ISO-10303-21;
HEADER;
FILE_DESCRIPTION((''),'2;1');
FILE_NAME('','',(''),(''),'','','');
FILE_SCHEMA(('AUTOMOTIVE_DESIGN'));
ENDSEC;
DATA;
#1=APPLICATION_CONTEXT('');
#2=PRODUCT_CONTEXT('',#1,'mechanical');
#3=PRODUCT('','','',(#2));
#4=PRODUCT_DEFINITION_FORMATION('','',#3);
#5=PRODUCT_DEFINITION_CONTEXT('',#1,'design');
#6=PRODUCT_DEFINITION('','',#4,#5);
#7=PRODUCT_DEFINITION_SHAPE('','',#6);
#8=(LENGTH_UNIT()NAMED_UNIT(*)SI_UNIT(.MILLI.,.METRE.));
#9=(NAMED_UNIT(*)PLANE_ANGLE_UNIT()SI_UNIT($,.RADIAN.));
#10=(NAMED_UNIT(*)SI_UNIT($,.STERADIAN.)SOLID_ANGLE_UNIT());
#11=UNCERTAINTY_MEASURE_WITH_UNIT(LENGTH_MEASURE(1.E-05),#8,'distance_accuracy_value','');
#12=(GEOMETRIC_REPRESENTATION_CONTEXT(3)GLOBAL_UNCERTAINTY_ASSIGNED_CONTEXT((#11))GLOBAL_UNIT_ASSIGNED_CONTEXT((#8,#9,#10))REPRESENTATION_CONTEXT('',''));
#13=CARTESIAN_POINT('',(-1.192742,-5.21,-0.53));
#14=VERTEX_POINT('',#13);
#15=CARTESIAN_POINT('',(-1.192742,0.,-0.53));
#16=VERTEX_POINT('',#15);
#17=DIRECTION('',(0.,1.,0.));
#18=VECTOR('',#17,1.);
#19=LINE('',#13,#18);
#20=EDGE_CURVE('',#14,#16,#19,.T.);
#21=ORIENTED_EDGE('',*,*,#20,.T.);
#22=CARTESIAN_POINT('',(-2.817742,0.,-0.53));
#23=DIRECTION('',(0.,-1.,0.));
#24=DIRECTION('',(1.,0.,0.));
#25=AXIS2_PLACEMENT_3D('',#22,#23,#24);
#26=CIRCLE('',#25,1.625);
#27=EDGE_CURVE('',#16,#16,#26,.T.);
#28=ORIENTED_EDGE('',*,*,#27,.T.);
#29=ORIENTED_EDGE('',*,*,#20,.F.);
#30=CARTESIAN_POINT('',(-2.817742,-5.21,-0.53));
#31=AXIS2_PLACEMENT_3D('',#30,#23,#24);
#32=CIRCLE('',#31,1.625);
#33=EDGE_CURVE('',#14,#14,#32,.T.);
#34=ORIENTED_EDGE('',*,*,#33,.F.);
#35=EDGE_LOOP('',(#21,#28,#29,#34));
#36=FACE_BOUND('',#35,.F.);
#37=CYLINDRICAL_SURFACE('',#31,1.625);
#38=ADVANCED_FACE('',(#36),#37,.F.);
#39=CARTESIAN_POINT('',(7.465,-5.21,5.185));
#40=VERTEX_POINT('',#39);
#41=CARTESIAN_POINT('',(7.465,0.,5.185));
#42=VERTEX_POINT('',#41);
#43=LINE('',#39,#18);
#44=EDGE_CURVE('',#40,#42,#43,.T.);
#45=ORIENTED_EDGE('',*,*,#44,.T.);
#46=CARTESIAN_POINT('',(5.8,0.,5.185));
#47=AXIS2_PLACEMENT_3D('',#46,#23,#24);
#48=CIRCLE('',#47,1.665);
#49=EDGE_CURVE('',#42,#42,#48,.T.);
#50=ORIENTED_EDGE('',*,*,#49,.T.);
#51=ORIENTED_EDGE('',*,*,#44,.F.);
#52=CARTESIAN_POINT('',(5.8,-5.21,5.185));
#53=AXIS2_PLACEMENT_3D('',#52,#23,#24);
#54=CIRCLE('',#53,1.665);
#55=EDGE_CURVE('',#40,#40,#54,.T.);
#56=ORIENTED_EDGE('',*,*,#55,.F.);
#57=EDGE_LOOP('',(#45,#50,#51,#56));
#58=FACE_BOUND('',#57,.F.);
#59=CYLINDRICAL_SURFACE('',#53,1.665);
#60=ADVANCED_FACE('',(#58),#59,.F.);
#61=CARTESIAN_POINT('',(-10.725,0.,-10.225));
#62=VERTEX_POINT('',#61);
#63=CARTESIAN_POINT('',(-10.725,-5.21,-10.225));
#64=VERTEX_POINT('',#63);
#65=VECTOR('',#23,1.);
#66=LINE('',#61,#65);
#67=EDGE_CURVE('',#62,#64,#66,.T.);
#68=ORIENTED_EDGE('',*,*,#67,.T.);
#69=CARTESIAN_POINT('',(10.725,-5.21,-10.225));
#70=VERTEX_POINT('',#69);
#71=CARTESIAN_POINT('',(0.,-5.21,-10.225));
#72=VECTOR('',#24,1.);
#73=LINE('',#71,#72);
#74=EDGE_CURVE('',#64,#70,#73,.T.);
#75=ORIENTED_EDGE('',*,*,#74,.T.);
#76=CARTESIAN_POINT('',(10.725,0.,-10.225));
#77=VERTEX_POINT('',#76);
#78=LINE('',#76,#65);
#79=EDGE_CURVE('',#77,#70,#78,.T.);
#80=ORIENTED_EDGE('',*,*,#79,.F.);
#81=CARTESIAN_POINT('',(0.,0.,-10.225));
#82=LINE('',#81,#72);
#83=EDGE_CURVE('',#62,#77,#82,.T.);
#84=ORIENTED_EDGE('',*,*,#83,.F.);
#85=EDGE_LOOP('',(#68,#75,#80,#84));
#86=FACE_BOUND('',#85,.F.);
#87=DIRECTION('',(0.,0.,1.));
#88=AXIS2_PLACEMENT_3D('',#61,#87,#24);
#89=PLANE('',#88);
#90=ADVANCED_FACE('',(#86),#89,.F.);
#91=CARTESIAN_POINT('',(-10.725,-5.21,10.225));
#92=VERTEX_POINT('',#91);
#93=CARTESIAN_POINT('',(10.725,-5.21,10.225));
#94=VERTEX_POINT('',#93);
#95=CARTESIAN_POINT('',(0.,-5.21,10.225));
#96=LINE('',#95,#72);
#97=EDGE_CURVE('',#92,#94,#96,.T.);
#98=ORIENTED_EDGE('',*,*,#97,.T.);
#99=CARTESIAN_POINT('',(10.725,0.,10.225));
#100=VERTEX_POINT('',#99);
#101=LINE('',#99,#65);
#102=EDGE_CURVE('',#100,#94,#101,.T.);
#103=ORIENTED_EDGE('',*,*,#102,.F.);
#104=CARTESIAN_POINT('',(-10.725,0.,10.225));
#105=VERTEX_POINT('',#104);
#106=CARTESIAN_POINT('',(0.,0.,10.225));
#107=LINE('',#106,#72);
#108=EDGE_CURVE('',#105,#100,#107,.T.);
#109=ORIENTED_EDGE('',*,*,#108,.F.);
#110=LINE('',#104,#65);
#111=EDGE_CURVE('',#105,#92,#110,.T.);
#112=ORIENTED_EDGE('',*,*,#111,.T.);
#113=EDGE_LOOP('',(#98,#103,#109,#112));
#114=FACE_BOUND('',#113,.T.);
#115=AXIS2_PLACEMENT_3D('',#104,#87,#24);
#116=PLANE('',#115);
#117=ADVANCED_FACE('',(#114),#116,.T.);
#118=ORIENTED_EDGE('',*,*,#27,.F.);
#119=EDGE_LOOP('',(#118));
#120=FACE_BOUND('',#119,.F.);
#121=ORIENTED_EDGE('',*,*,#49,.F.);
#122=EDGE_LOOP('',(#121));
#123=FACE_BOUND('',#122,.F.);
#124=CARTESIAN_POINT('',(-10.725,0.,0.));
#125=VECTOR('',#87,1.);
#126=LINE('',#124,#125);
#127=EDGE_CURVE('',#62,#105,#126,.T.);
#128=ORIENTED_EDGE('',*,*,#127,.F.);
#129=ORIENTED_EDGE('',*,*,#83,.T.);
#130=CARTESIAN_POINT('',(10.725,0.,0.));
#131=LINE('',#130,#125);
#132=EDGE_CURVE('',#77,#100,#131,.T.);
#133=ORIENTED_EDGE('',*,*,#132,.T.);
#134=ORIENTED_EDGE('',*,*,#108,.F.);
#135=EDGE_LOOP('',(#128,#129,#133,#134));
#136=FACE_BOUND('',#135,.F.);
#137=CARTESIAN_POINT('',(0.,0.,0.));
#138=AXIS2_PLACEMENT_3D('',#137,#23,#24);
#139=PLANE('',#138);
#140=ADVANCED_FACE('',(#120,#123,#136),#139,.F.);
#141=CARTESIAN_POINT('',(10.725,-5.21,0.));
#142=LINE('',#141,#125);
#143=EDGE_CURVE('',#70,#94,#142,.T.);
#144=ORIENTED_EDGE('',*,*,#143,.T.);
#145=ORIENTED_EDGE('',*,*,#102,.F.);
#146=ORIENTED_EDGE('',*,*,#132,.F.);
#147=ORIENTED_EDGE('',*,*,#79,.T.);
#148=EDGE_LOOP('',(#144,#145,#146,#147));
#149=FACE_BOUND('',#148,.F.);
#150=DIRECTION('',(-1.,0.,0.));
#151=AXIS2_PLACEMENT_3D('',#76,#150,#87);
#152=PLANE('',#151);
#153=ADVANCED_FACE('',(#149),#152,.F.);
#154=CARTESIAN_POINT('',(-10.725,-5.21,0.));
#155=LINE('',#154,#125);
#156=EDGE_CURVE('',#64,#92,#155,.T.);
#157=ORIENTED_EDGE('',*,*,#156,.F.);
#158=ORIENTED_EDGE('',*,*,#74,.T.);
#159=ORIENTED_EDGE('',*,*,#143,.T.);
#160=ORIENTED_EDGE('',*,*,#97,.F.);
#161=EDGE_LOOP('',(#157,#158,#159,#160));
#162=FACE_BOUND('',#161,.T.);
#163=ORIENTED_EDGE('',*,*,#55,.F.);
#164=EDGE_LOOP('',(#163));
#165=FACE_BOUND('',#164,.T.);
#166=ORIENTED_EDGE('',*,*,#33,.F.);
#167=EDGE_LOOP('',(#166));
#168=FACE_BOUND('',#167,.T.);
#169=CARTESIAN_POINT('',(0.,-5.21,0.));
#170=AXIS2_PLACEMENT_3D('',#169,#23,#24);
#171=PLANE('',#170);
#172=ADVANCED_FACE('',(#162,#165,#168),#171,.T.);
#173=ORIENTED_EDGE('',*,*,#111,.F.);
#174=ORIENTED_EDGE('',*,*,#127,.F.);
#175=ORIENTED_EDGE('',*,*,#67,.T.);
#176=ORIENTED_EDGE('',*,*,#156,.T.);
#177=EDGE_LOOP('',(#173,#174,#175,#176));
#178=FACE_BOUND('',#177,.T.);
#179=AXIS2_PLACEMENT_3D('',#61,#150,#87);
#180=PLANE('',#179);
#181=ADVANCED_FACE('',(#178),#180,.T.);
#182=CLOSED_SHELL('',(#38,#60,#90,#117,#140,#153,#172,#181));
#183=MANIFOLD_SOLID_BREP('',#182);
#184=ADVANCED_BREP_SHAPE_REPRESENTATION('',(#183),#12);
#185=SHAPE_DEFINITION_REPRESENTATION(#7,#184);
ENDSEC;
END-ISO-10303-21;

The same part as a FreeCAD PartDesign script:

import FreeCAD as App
import Part
import Sketcher


def add_polygon(sketch, points):
    """Adds a closed chain of lines whose ends are joined by coincident constraints."""
    first, n = sketch.GeometryCount, len(points)
    for a, b in zip(points, points[1:] + points[:1]):
        sketch.addGeometry(Part.LineSegment(App.Vector(*a, 0), App.Vector(*b, 0)), False)
    for i in range(n):
        sketch.addConstraint(Sketcher.Constraint("Coincident", first + i, 2, first + (i + 1) % n, 1))

doc = App.newDocument("Part")
body = doc.addObject("PartDesign::Body", "Body")

sketch1 = body.newObject("Sketcher::SketchObject", "Sketch")
sketch1.AttachmentSupport = (doc.getObject("XZ_Plane"), [""])
sketch1.MapMode = "FlatFace"
add_polygon(sketch1, [(-11, 10), (-11, -10), (11, -10), (11, 10)])
sketch1.addConstraint([
    Sketcher.Constraint("Vertical", 0),
    Sketcher.Constraint("Horizontal", 1),
    Sketcher.Constraint("Vertical", 2),
    Sketcher.Constraint("Horizontal", 3),
    Sketcher.Constraint("Symmetric", 0, 2, 2, 2, -1, 1),
    Sketcher.Constraint("DistanceX", 1, 1, 1, 2, 21.45),
    Sketcher.Constraint("DistanceY", 0, 2, 0, 1, 20.45),
])
pad1 = body.newObject("PartDesign::Pad", "Pad")
pad1.Profile = sketch1
pad1.Length = 5.21

sketch2 = body.newObject("Sketcher::SketchObject", "Sketch001")
sketch2.AttachmentSupport = (doc.getObject("XZ_Plane"), [""])
sketch2.MapMode = "FlatFace"
sketch2.AttachmentOffset = App.Placement(App.Vector(0, 0, 5.21), App.Rotation())
sketch2.addGeometry([
    Part.Circle(App.Vector(5.8, 5.2, 0), App.Vector(0, 0, 1), 1.7),
    Part.Circle(App.Vector(-2.8, -0.5, 0), App.Vector(0, 0, 1), 1.6),
], False)
sketch2.addConstraint([
    Sketcher.Constraint("Diameter", 0, 3.33),
    Sketcher.Constraint("Diameter", 1, 3.25),
    Sketcher.Constraint("DistanceX", -1, 1, 0, 3, 5.8),
    Sketcher.Constraint("DistanceY", 1, 3, -1, 1, 0.53),
    Sketcher.Constraint("DistanceY", -1, 1, 0, 3, 5.185),
    Sketcher.Constraint("DistanceX", 1, 3, -1, 1, 2.817742),
])
pocket1 = body.newObject("PartDesign::Pocket", "Pocket")
pocket1.Profile = sketch2
pocket1.Type = "ThroughAll"

doc.recompute()
